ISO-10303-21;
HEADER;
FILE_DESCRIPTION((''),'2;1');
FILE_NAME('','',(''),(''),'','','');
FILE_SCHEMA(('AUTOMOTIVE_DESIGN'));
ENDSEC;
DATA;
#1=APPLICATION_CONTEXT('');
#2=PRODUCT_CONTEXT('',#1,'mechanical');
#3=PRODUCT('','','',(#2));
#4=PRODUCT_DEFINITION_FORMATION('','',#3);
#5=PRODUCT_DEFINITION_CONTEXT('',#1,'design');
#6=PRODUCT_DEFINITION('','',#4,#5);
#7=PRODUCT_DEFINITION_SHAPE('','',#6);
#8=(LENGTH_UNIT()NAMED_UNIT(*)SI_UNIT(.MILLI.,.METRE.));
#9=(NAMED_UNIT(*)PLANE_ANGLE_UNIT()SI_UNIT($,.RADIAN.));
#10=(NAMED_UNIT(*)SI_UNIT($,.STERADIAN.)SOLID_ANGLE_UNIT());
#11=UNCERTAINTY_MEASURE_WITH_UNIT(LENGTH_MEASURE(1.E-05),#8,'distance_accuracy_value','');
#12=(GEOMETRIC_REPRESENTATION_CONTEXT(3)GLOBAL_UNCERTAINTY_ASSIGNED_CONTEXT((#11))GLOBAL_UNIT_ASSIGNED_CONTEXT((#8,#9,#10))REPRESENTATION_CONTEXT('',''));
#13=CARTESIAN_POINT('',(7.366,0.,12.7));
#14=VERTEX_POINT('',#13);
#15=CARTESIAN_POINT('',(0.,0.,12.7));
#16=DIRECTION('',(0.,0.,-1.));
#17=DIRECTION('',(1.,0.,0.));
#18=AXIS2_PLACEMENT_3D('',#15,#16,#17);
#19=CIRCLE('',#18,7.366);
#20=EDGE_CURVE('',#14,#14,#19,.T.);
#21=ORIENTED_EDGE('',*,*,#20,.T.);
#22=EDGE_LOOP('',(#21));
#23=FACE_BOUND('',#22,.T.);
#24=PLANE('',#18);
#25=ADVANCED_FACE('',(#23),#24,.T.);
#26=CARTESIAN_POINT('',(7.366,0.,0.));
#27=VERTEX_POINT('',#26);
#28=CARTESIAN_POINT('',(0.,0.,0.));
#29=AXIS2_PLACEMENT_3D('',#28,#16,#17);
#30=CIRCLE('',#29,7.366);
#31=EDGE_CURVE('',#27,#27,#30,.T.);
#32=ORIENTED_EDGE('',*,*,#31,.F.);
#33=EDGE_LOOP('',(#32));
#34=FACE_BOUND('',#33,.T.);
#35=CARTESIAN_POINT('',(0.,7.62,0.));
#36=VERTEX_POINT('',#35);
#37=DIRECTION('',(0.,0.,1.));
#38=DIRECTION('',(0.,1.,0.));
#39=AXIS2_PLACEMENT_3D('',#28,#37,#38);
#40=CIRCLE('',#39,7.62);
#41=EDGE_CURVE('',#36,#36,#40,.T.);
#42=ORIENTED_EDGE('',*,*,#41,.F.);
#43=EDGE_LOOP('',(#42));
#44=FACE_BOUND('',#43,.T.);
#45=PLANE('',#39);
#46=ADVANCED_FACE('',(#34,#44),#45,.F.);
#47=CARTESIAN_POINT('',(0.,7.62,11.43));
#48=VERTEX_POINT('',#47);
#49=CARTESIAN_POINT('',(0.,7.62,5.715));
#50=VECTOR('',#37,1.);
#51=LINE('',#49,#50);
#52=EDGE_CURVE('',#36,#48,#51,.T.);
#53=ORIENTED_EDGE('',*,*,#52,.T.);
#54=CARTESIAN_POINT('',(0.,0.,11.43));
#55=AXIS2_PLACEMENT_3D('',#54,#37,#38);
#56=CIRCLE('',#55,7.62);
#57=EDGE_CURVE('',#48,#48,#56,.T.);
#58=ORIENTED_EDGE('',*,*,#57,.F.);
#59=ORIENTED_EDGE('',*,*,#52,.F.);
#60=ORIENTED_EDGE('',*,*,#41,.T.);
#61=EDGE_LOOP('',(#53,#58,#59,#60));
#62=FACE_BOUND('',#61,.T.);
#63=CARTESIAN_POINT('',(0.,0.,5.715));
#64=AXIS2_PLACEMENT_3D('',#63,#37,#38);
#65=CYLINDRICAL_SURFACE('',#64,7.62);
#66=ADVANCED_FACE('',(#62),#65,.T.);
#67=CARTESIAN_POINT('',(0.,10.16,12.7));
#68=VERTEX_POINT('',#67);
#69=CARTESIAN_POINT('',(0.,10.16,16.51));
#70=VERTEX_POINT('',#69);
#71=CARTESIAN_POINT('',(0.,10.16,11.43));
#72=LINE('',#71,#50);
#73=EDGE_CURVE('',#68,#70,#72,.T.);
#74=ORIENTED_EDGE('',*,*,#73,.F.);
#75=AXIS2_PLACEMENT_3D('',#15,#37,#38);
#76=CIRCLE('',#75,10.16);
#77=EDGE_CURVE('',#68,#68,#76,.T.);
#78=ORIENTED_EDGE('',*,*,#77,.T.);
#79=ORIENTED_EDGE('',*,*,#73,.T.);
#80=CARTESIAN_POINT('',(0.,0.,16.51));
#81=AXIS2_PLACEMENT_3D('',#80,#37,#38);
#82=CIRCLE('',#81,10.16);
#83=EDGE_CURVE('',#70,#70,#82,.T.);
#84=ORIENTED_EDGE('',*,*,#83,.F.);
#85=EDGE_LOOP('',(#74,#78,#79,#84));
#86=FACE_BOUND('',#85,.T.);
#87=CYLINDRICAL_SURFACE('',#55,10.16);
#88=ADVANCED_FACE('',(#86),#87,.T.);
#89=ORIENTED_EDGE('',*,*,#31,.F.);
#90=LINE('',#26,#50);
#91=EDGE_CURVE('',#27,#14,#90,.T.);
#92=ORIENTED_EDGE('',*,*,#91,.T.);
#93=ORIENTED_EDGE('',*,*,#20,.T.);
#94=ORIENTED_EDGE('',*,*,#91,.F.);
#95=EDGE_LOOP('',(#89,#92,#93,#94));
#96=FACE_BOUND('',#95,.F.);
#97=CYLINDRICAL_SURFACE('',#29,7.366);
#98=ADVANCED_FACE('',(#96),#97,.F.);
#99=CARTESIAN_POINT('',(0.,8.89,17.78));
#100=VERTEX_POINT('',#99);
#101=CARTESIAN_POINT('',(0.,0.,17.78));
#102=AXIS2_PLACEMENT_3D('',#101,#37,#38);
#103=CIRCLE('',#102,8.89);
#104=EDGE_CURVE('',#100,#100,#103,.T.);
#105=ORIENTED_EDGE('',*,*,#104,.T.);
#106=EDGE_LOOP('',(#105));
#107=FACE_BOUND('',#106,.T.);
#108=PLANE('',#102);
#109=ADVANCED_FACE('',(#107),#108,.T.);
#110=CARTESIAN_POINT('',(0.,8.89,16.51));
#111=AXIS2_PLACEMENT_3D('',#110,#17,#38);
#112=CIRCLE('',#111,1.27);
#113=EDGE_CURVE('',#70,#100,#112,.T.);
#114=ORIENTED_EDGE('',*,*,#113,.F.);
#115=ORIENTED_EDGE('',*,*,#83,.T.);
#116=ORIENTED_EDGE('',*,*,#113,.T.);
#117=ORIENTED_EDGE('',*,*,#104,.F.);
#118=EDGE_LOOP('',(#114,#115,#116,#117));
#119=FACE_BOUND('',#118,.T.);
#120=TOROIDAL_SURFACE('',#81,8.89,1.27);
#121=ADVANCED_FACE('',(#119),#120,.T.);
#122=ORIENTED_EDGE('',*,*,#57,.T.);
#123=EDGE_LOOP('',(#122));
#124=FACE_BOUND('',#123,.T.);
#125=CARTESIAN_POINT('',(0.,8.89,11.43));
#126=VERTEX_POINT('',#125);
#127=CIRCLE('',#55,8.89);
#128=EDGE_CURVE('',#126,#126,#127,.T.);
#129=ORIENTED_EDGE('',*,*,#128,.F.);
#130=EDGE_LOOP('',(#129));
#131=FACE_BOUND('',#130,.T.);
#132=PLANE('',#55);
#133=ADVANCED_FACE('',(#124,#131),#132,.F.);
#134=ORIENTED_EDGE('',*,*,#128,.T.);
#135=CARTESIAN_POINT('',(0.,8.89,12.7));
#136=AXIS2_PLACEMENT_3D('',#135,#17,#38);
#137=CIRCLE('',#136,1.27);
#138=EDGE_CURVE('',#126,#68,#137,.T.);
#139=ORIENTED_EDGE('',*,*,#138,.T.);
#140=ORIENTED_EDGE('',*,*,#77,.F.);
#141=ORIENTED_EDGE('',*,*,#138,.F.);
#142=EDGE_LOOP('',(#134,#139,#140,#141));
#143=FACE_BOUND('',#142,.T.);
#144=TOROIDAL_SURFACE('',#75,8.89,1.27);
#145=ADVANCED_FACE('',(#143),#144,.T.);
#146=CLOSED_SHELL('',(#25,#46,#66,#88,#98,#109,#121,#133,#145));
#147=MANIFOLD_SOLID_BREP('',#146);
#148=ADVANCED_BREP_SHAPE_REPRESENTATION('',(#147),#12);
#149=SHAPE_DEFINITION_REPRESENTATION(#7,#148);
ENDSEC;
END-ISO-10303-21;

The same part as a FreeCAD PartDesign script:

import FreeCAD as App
import Part
import Sketcher

V = App.Vector
Q = App.Units.Quantity


def edges_at(feature, points):
    """Names of the edges that pass closest to the given points."""
    edges = feature.Shape.Edges
    near = lambda p: min(range(len(edges)), key=lambda i: edges[i].distToShape(Part.Vertex(*p))[0])
    return sorted({f"Edge{near(p) + 1}" for p in points})

doc = App.newDocument("Part")
body = doc.addObject("PartDesign::Body", "Body")

# Sketch on YZ plane
sketch1 = body.newObject("Sketcher::SketchObject", "Sketch")
sketch1.AttachmentSupport = (doc.getObject("YZ_Plane"), [""])
sketch1.MapMode = "FlatFace"
sketch1.addGeometry([
    Part.LineSegment(V(0, 0, 0), V(7.6, 0, 0)),  # 0
    Part.LineSegment(V(7.6, 0, 0), V(7.6, 11.4, 0)),  # 1
    Part.LineSegment(V(7.6, 11.4, 0), V(10.2, 11.4, 0)),  # 2
    Part.LineSegment(V(10.2, 11.4, 0), V(10.2, 17.8, 0)),  # 3
    Part.LineSegment(V(10.2, 17.8, 0), V(0, 17.8, 0)),  # 4
    Part.LineSegment(V(0, 17.8, 0), V(0, 0, 0)),  # 5
], False)
sketch1.addConstraint([
    Sketcher.Constraint("Coincident", 0, 2, 1, 1),
    Sketcher.Constraint("Coincident", 1, 2, 2, 1),
    Sketcher.Constraint("Coincident", 2, 2, 3, 1),
    Sketcher.Constraint("Coincident", 3, 2, 4, 1),
    Sketcher.Constraint("Coincident", 4, 2, 5, 1),
    Sketcher.Constraint("Coincident", 5, 2, 0, 1),
    Sketcher.Constraint("Horizontal", 0),
    Sketcher.Constraint("Vertical", 1),
    Sketcher.Constraint("Horizontal", 2),
    Sketcher.Constraint("Vertical", 3),
    Sketcher.Constraint("Horizontal", 4),
    Sketcher.Constraint("Vertical", 5),
    Sketcher.Constraint("Coincident", 5, 2, -1, 1),
    Sketcher.Constraint("DistanceX", 0, 1, 0, 2, Q("0.3 in")),
    Sketcher.Constraint("DistanceX", 2, 1, 2, 2, Q("0.1 in")),
    Sketcher.Constraint("DistanceY", 5, 2, 5, 1, Q("0.7 in")),
    Sketcher.Constraint("DistanceY", 1, 1, 1, 2, Q("0.45 in")),
])
revolution = body.newObject("PartDesign::Revolution", "Revolution")
revolution.Profile = sketch1
revolution.ReferenceAxis = (sketch1, ["V_Axis"])
revolution.Angle = 360
doc.recompute()

fillet = body.newObject("PartDesign::Fillet", "Fillet")
fillet.Base = (revolution, edges_at(revolution, [(0, -10.16, 11.43), (0, -10.16, 17.78), (0, 10.16, 14.605)]))
fillet.Radius = Q("0.05 in")

# Sketch on XY plane
sketch2 = body.newObject("Sketcher::SketchObject", "Sketch001")
sketch2.AttachmentSupport = (doc.getObject("XY_Plane"), [""])
sketch2.MapMode = "FlatFace"
sketch2.addGeometry(Part.Circle(V(0, 0, 0), V(0, 0, 1), 7), False)
sketch2.addConstraint([
    Sketcher.Constraint("Coincident", 0, 3, -1, 1),
    Sketcher.Constraint("Diameter", 0, Q("0.58 in")),
])
pocket1 = body.newObject("PartDesign::Pocket", "Pocket")
pocket1.Profile = sketch2
pocket1.Length = Q("0.5 in")
pocket1.Reversed = True

doc.recompute()
